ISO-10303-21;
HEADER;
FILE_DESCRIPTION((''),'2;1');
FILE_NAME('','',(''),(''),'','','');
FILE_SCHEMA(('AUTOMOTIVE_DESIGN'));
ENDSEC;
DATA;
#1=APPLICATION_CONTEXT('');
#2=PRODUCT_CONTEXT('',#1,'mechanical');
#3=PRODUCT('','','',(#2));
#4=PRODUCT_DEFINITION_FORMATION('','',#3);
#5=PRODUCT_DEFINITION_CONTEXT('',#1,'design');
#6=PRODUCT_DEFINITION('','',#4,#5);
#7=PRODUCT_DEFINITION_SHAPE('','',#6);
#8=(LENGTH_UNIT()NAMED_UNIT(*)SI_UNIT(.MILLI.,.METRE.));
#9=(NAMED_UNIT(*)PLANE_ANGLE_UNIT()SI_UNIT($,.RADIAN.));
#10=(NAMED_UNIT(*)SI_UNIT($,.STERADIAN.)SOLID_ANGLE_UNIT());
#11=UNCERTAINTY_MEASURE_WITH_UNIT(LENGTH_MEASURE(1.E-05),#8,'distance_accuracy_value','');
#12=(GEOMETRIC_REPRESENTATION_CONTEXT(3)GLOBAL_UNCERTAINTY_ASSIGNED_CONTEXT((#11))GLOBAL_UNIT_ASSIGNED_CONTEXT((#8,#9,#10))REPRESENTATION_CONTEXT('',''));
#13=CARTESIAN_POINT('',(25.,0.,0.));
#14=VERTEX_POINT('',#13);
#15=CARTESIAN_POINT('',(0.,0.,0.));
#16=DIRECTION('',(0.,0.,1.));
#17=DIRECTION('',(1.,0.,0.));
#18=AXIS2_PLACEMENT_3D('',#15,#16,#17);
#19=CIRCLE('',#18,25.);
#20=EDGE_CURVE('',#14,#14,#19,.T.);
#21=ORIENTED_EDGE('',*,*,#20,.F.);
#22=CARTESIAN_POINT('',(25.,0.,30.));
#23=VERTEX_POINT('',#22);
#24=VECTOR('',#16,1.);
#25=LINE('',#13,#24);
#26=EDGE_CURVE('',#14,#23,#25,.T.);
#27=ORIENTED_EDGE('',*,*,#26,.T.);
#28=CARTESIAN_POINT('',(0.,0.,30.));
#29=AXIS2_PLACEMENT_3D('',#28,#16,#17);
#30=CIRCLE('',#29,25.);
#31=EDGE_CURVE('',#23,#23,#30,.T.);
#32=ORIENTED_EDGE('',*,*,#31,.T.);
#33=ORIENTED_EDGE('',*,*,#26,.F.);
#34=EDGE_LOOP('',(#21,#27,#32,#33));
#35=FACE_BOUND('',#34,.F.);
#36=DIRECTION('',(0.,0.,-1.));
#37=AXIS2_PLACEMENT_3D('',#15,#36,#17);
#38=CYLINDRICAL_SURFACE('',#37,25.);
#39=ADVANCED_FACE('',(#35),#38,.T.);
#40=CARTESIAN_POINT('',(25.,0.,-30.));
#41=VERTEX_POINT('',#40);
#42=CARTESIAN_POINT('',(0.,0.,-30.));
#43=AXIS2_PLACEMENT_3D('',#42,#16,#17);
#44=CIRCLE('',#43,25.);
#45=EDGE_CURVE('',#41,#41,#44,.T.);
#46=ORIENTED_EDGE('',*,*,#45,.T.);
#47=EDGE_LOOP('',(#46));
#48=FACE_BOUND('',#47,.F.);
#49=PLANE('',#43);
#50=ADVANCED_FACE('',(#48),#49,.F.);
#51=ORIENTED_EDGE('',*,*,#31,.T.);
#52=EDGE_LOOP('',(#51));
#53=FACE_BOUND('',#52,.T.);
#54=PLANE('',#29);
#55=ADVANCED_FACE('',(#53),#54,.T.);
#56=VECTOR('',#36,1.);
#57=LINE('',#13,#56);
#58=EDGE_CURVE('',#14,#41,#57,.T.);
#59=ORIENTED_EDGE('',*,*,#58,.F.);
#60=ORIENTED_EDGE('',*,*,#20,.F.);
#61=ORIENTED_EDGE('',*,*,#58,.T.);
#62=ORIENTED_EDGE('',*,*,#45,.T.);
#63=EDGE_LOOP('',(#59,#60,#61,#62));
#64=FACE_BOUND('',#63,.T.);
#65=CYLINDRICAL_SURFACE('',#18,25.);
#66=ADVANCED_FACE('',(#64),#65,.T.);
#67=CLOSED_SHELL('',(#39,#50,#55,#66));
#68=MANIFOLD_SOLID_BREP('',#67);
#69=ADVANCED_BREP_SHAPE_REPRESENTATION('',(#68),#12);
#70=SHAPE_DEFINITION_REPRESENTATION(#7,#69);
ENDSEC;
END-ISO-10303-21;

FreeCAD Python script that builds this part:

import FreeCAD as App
import Part
import Sketcher
Q = App.Units.Quantity

doc = App.newDocument("Part")
body = doc.addObject("PartDesign::Body", "Body")

# Sketch on XY plane
sketch1 = body.newObject("Sketcher::SketchObject", "Sketch")
sketch1.AttachmentSupport = (doc.getObject("XY_Plane"), [""])
sketch1.MapMode = "FlatFace"
sketch1.addGeometry(Part.Circle(App.Vector(0, 0, 0), App.Vector(0, 0, 1), 25), False)
sketch1.addConstraint([
    Sketcher.Constraint("Coincident", 0, 3, -1, 1),
    Sketcher.Constraint("Diameter", 0, Q("50 mm")),
])
pad1 = body.newObject("PartDesign::Pad", "Pad")
pad1.Profile = sketch1
pad1.Length = 60
pad1.Midplane = True

doc.recompute()
